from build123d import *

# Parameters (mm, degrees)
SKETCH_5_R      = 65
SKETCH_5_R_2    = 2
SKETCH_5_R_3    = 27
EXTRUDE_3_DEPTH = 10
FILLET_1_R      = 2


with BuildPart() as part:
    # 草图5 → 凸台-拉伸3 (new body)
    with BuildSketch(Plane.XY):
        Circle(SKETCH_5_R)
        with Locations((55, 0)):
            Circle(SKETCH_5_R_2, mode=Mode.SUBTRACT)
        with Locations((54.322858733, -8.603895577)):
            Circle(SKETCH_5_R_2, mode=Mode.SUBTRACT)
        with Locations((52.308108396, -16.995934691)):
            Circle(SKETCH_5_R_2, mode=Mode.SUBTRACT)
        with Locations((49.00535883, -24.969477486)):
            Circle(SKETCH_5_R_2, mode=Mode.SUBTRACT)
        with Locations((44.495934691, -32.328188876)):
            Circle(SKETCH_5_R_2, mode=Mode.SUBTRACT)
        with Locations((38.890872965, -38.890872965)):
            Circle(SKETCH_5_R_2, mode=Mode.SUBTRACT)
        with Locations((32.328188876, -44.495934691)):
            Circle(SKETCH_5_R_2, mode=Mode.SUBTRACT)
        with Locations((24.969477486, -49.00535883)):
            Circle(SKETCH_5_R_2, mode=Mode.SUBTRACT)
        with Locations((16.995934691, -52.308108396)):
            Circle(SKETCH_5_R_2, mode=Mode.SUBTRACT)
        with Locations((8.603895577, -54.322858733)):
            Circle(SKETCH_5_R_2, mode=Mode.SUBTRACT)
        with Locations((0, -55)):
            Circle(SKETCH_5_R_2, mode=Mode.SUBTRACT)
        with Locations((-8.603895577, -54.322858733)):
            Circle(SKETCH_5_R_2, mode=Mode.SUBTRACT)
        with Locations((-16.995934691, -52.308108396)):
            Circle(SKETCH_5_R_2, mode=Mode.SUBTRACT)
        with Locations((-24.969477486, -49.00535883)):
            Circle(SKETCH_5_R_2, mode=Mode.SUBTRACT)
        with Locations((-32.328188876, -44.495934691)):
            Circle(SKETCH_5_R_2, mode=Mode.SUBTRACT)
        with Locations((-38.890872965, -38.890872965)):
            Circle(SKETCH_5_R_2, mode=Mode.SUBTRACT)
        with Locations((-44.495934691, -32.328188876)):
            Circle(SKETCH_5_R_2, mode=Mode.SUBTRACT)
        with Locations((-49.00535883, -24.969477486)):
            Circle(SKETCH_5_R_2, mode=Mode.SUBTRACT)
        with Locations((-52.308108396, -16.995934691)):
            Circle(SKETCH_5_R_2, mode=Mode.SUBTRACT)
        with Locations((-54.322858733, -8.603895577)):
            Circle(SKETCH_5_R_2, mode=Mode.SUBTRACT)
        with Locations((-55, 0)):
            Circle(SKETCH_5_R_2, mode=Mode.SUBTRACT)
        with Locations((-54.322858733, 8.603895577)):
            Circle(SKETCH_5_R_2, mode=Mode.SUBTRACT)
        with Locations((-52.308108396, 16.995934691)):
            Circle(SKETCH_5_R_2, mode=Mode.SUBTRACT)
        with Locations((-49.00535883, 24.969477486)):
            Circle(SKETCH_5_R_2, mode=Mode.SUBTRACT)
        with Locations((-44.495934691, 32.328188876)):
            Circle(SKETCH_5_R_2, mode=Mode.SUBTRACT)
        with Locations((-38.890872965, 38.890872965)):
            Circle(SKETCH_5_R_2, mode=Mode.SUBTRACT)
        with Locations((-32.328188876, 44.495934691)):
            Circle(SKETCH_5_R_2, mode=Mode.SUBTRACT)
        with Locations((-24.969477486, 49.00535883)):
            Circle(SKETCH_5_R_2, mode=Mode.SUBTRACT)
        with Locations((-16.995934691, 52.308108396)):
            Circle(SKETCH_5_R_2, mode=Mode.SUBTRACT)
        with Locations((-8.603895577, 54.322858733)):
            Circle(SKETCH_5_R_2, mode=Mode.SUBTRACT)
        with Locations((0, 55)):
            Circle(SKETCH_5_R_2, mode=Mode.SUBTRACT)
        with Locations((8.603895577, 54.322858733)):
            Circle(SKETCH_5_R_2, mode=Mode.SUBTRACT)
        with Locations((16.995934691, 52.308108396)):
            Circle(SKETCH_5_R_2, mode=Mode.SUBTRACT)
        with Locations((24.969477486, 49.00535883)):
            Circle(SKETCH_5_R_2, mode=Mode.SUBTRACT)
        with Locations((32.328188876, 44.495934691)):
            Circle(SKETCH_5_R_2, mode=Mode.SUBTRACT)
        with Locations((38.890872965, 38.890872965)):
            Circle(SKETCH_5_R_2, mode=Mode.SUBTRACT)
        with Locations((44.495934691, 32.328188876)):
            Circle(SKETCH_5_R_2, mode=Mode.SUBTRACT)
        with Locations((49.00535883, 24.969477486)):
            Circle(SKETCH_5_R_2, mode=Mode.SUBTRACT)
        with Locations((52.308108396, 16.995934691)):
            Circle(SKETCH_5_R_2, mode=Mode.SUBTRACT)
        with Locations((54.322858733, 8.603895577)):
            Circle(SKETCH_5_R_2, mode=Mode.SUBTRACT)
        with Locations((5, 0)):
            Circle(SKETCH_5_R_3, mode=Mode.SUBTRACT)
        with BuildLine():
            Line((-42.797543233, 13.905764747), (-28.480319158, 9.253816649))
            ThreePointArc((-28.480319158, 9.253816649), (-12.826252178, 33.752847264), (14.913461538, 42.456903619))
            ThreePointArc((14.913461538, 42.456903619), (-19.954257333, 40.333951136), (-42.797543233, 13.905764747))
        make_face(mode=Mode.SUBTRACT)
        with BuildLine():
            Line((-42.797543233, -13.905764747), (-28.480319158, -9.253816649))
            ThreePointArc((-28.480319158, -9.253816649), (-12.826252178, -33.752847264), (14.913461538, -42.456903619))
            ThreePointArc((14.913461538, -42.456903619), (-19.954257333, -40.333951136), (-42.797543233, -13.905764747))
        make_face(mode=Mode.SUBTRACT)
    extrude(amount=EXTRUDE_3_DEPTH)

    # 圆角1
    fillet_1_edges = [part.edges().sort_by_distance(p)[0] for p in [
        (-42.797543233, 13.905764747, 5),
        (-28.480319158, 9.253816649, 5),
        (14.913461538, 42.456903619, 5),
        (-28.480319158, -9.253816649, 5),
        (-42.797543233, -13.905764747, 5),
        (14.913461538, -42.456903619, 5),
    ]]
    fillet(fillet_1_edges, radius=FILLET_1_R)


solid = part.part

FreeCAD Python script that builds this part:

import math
import FreeCAD as App
import Part
import Sketcher
from FreeCAD import Vector
Q = App.Units.Quantity


def edges_at(feature, points):
    """Names of the edges that pass closest to the given points."""
    edges = feature.Shape.Edges
    near = lambda p: min(range(len(edges)), key=lambda i: edges[i].distToShape(Part.Vertex(*p))[0])
    return sorted({f"Edge{near(p) + 1}" for p in points})

doc = App.newDocument("Part")
params = doc.addObject("Spreadsheet::Sheet", "Params")
for row, (alias, value) in enumerate([
    ("sketch1_diameter", "130 mm"),
    ("sketch1_diameter2", "4 mm"),
    ("sketch1_diameter3", "54 mm"),
    ("sketch1_radius", "45 mm"),
    ("sketch1_radius2", "42.5 mm"),
    ("pad1_length", "10 mm"),
    ("fillet_radius", "2 mm"),
], start=1):
    params.set(f"A{row}", alias)
    params.set(f"B{row}", "=" + value)
    params.setAlias(f"B{row}", alias)

body = doc.addObject("PartDesign::Body", "Body")

# Sketch on XY plane
sketch1 = body.newObject("Sketcher::SketchObject", "Sketch")
sketch1.AttachmentSupport = (doc.getObject("XY_Plane"), [""])
sketch1.MapMode = "FlatFace"
sketch1.addGeometry([
    Part.Circle(Vector(0, 0, 0), Vector(0, 0, 1), 65),  # 0
    Part.Circle(Vector(-32.328189, -44.495935, 0), Vector(0, 0, 1), 2),  # 1
    Part.Circle(Vector(-44.495935, -32.328189, 0), Vector(0, 0, 1), 2),  # 2
    Part.Circle(Vector(-38.890873, -38.890873, 0), Vector(0, 0, 1), 2),  # 3
    Part.Circle(Vector(-16.995935, -52.308108, 0), Vector(0, 0, 1), 2),  # 4
    Part.Circle(Vector(-24.969477, -49.005359, 0), Vector(0, 0, 1), 2),  # 5
    Part.Circle(Vector(-8.603896, -54.322859, 0), Vector(0, 0, 1), 2),  # 6
    Part.Circle(Vector(-49.005359, -24.969477, 0), Vector(0, 0, 1), 2),  # 7
    Part.Circle(Vector(-52.308108, -16.995935, 0), Vector(0, 0, 1), 2),  # 8
    Part.Circle(Vector(-54.322859, -8.603896, 0), Vector(0, 0, 1), 2),  # 9
    Part.ArcOfCircle(Part.Circle(Vector(0, 0, 0), Vector(0, 0, 1), 45), math.radians(-162), math.radians(-70.645605)),  # 10
    Part.LineSegment(Vector(-42.797543, -13.905765, 0), Vector(-28.480319, -9.253817, 0)),  # 11
    Part.ArcOfCircle(Part.Circle(Vector(13, 0, 0), Vector(0, 0, 1), 42.5), math.radians(-167.423857), math.radians(-87.419521)),  # 12
    Part.Circle(Vector(0, -55, 0), Vector(0, 0, 1), 2),  # 13
    Part.Circle(Vector(8.603896, -54.322859, 0), Vector(0, 0, 1), 2),  # 14
    Part.Circle(Vector(16.995935, -52.308108, 0), Vector(0, 0, 1), 2),  # 15
    Part.Circle(Vector(24.969477, -49.005359, 0), Vector(0, 0, 1), 2),  # 16
    Part.Circle(Vector(32.328189, -44.495935, 0), Vector(0, 0, 1), 2),  # 17
    Part.Circle(Vector(38.890873, -38.890873, 0), Vector(0, 0, 1), 2),  # 18
    Part.Circle(Vector(44.495935, -32.328189, 0), Vector(0, 0, 1), 2),  # 19
    Part.Circle(Vector(49.005359, -24.969477, 0), Vector(0, 0, 1), 2),  # 20
    Part.Circle(Vector(52.308108, -16.995935, 0), Vector(0, 0, 1), 2),  # 21
    Part.Circle(Vector(54.322859, -8.603896, 0), Vector(0, 0, 1), 2),  # 22
    Part.Circle(Vector(-55, 0, 0), Vector(0, 0, 1), 2),  # 23
    Part.Circle(Vector(-54.322859, 8.603896, 0), Vector(0, 0, 1), 2),  # 24
    Part.Circle(Vector(-52.308108, 16.995935, 0), Vector(0, 0, 1), 2),  # 25
    Part.Circle(Vector(-49.005359, 24.969477, 0), Vector(0, 0, 1), 2),  # 26
    Part.LineSegment(Vector(-28.480319, 9.253817, 0), Vector(-42.797543, 13.905765, 0)),  # 27
    Part.ArcOfCircle(Part.Circle(Vector(0, 0, 0), Vector(0, 0, 1), 45), math.radians(70.645605), math.radians(162)),  # 28
    Part.ArcOfCircle(Part.Circle(Vector(13, 0, 0), Vector(0, 0, 1), 42.5), math.radians(87.419521), math.radians(167.423857)),  # 29
    Part.Circle(Vector(-44.495935, 32.328189, 0), Vector(0, 0, 1), 2),  # 30
    Part.Circle(Vector(-38.890873, 38.890873, 0), Vector(0, 0, 1), 2),  # 31
    Part.Circle(Vector(-32.328189, 44.495935, 0), Vector(0, 0, 1), 2),  # 32
    Part.Circle(Vector(-24.969477, 49.005359, 0), Vector(0, 0, 1), 2),  # 33
    Part.Circle(Vector(-16.995935, 52.308108, 0), Vector(0, 0, 1), 2),  # 34
    Part.Circle(Vector(-8.603896, 54.322859, 0), Vector(0, 0, 1), 2),  # 35
    Part.Circle(Vector(5, 0, 0), Vector(0, 0, 1), 27),  # 36
    Part.Circle(Vector(55, 0, 0), Vector(0, 0, 1), 2),  # 37
    Part.Circle(Vector(54.322859, 8.603896, 0), Vector(0, 0, 1), 2),  # 38
    Part.Circle(Vector(52.308108, 16.995935, 0), Vector(0, 0, 1), 2),  # 39
    Part.Circle(Vector(49.005359, 24.969477, 0), Vector(0, 0, 1), 2),  # 40
    Part.Circle(Vector(0, 55, 0), Vector(0, 0, 1), 2),  # 41
    Part.Circle(Vector(8.603896, 54.322859, 0), Vector(0, 0, 1), 2),  # 42
    Part.Circle(Vector(24.969477, 49.005359, 0), Vector(0, 0, 1), 2),  # 43
    Part.Circle(Vector(16.995935, 52.308108, 0), Vector(0, 0, 1), 2),  # 44
    Part.Circle(Vector(38.890873, 38.890873, 0), Vector(0, 0, 1), 2),  # 45
    Part.Circle(Vector(44.495935, 32.328189, 0), Vector(0, 0, 1), 2),  # 46
    Part.Circle(Vector(32.328189, 44.495935, 0), Vector(0, 0, 1), 2),  # 47
], False)
sketch1.addConstraint([
    Sketcher.Constraint("Coincident", 10, 1, 11, 1),
    Sketcher.Constraint("Coincident", 11, 2, 12, 1),
    Sketcher.Constraint("Coincident", 12, 2, 10, 2),
    Sketcher.Constraint("Coincident", 27, 2, 28, 2),
    Sketcher.Constraint("Coincident", 28, 1, 29, 1),
    Sketcher.Constraint("Coincident", 29, 2, 27, 1),
    Sketcher.Constraint("Coincident", 0, 3, -1, 1),
    Sketcher.Constraint("Coincident", 10, 3, -1, 1),
    Sketcher.Constraint("Coincident", 28, 3, -1, 1),
    Sketcher.Constraint("Coincident", 29, 3, 12, 3),
    Sketcher.Constraint("Equal", 1, 2),
    Sketcher.Constraint("Equal", 2, 3),
    Sketcher.Constraint("Equal", 3, 4),
    Sketcher.Constraint("Equal", 4, 5),
    Sketcher.Constraint("Equal", 5, 6),
    Sketcher.Constraint("Equal", 6, 7),
    Sketcher.Constraint("Equal", 7, 8),
    Sketcher.Constraint("Equal", 8, 9),
    Sketcher.Constraint("Equal", 9, 13),
    Sketcher.Constraint("Equal", 13, 14),
    Sketcher.Constraint("Equal", 14, 15),
    Sketcher.Constraint("Equal", 15, 16),
    Sketcher.Constraint("Equal", 16, 17),
    Sketcher.Constraint("Equal", 17, 18),
    Sketcher.Constraint("Equal", 18, 19),
    Sketcher.Constraint("Equal", 19, 20),
    Sketcher.Constraint("Equal", 20, 21),
    Sketcher.Constraint("Equal", 21, 22),
    Sketcher.Constraint("Equal", 22, 23),
    Sketcher.Constraint("Equal", 23, 24),
    Sketcher.Constraint("Equal", 24, 25),
    Sketcher.Constraint("Equal", 25, 26),
    Sketcher.Constraint("Equal", 10, 28),
    Sketcher.Constraint("Equal", 12, 29),
    Sketcher.Constraint("Equal", 26, 30),
    Sketcher.Constraint("Equal", 30, 31),
    Sketcher.Constraint("Equal", 31, 32),
    Sketcher.Constraint("Equal", 32, 33),
    Sketcher.Constraint("Equal", 33, 34),
    Sketcher.Constraint("Equal", 34, 35),
    Sketcher.Constraint("Equal", 35, 37),
    Sketcher.Constraint("Equal", 37, 38),
    Sketcher.Constraint("Equal", 38, 39),
    Sketcher.Constraint("Equal", 39, 40),
    Sketcher.Constraint("Equal", 40, 41),
    Sketcher.Constraint("Equal", 41, 42),
    Sketcher.Constraint("Equal", 42, 43),
    Sketcher.Constraint("Equal", 43, 44),
    Sketcher.Constraint("Equal", 44, 45),
    Sketcher.Constraint("Equal", 45, 46),
    Sketcher.Constraint("Equal", 46, 47),
    Sketcher.Constraint("Symmetric", 22, 3, 24, 3, -1, 1),
    Sketcher.Constraint("Symmetric", 21, 3, 25, 3, -1, 1),
    Sketcher.Constraint("Symmetric", 20, 3, 26, 3, -1, 1),
    Sketcher.Constraint("Symmetric", 19, 3, 30, 3, -1, 1),
    Sketcher.Constraint("Symmetric", 18, 3, 31, 3, -1, 1),
    Sketcher.Constraint("Symmetric", 17, 3, 32, 3, -1, 1),
    Sketcher.Constraint("Symmetric", 16, 3, 33, 3, -1, 1),
    Sketcher.Constraint("Symmetric", 15, 3, 34, 3, -1, 1),
    Sketcher.Constraint("Symmetric", 14, 3, 35, 3, -1, 1),
    Sketcher.Constraint("Symmetric", 23, 3, 37, 3, -1, 1),
    Sketcher.Constraint("Symmetric", 9, 3, 38, 3, -1, 1),
    Sketcher.Constraint("Symmetric", 8, 3, 39, 3, -1, 1),
    Sketcher.Constraint("Symmetric", 7, 3, 40, 3, -1, 1),
    Sketcher.Constraint("Symmetric", 13, 3, 41, 3, -1, 1),
    Sketcher.Constraint("Symmetric", 6, 3, 42, 3, -1, 1),
    Sketcher.Constraint("Symmetric", 5, 3, 43, 3, -1, 1),
    Sketcher.Constraint("Symmetric", 4, 3, 44, 3, -1, 1),
    Sketcher.Constraint("Symmetric", 3, 3, 45, 3, -1, 1),
    Sketcher.Constraint("Symmetric", 2, 3, 46, 3, -1, 1),
    Sketcher.Constraint("Symmetric", 1, 3, 47, 3, -1, 1),
    Sketcher.Constraint("Symmetric", 6, 3, 14, 3, -2),
    Sketcher.Constraint("Symmetric", 4, 3, 15, 3, -2),
    Sketcher.Constraint("Symmetric", 5, 3, 16, 3, -2),
    Sketcher.Constraint("Symmetric", 1, 3, 17, 3, -2),
    Sketcher.Constraint("Symmetric", 3, 3, 18, 3, -2),
    Sketcher.Constraint("Symmetric", 2, 3, 19, 3, -2),
    Sketcher.Constraint("Symmetric", 7, 3, 20, 3, -2),
    Sketcher.Constraint("Symmetric", 8, 3, 21, 3, -2),
    Sketcher.Constraint("Symmetric", 9, 3, 22, 3, -2),
    Sketcher.Constraint("Symmetric", 11, 2, 29, 2, -1),
    Sketcher.Constraint("PointOnObject", 13, 3, -2),
    Sketcher.Constraint("PointOnObject", 23, 3, -1),
    Sketcher.Constraint("PointOnObject", 36, 3, -1),
    Sketcher.Constraint("Vertical", 10, 1, 27, 2),
    Sketcher.Constraint("Diameter", 0, Q("130 mm")),
    Sketcher.Constraint("Diameter", 1, Q("4 mm")),
    Sketcher.Constraint("Diameter", 36, Q("54 mm")),
    Sketcher.Constraint("Radius", 10, Q("45 mm")),
    Sketcher.Constraint("Radius", 12, Q("42.5 mm")),
    Sketcher.Constraint("Angle", 11, Q("18 deg")),
    Sketcher.Constraint("DistanceX", -1, 1, 12, 3, Q("13 mm")),
    Sketcher.Constraint("DistanceY", 13, 3, -1, 1, Q("55 mm")),
    Sketcher.Constraint("DistanceX", 23, 3, -1, 1, Q("55 mm")),
    Sketcher.Constraint("DistanceX", -1, 1, 36, 3, Q("5 mm")),
    Sketcher.Constraint("DistanceX", 2, 3, 4, 3, Q("27.5 mm")),
    Sketcher.Constraint("DistanceY", 1, 3, 8, 3, Q("27.5 mm")),
    Sketcher.Constraint("DistanceY", 6, 3, 5, 3, Q("5.3175 mm")),
    Sketcher.Constraint("DistanceX", 9, 3, 7, 3, Q("5.3175 mm")),
    Sketcher.Constraint("Distance", 11, Q("15.05402 mm")),
    Sketcher.Constraint("DistanceX", 1, 3, -1, 1, Q("32.328189 mm")),
    Sketcher.Constraint("DistanceY", 2, 3, -1, 1, Q("32.328189 mm")),
    Sketcher.Constraint("DistanceY", 4, 3, -1, 1, Q("52.308108 mm")),
    Sketcher.Constraint("DistanceY", 5, 3, -1, 1, Q("49.005359 mm")),
    Sketcher.Constraint("DistanceX", 7, 3, -1, 1, Q("49.005359 mm")),
    Sketcher.Constraint("DistanceX", 8, 3, -1, 1, Q("52.308108 mm")),
    Sketcher.Constraint("DistanceY", 1, 3, 3, 3, Q("5.605062 mm")),
    Sketcher.Constraint("DistanceX", 2, 3, 3, 3, Q("5.605062 mm")),
    Sketcher.Constraint("DistanceX", 1, 3, 5, 3, Q("7.358711 mm")),
    Sketcher.Constraint("DistanceX", 4, 3, 6, 3, Q("8.392039 mm")),
    Sketcher.Constraint("DistanceX", 5, 3, 6, 3, Q("16.365582 mm")),
    Sketcher.Constraint("DistanceY", 2, 3, 7, 3, Q("7.358711 mm")),
    Sketcher.Constraint("DistanceY", 8, 3, 9, 3, Q("8.392039 mm")),
    Sketcher.Constraint("DistanceY", 7, 3, 9, 3, Q("16.365582 mm")),
])
sketch1.setExpression("Constraints[85]", "Params.sketch1_diameter")
sketch1.setExpression("Constraints[86]", "Params.sketch1_diameter2")
sketch1.setExpression("Constraints[87]", "Params.sketch1_diameter3")
sketch1.setExpression("Constraints[88]", "Params.sketch1_radius")
sketch1.setExpression("Constraints[89]", "Params.sketch1_radius2")
pad1 = body.newObject("PartDesign::Pad", "Pad")
pad1.Profile = sketch1
pad1.setExpression("Length", "Params.pad1_length")
doc.recompute()

fillet = body.newObject("PartDesign::Fillet", "Fillet")
fillet.Base = (pad1, edges_at(pad1, [
    (-42.798, 13.906, 5),
    (-28.48, 9.254, 5),
    (14.913, 42.457, 5),
    (-28.48, -9.254, 5),
    (-42.798, -13.906, 5),
    (14.913, -42.457, 5),
]))
fillet.setExpression("Radius", "Params.fillet_radius")

doc.recompute()
